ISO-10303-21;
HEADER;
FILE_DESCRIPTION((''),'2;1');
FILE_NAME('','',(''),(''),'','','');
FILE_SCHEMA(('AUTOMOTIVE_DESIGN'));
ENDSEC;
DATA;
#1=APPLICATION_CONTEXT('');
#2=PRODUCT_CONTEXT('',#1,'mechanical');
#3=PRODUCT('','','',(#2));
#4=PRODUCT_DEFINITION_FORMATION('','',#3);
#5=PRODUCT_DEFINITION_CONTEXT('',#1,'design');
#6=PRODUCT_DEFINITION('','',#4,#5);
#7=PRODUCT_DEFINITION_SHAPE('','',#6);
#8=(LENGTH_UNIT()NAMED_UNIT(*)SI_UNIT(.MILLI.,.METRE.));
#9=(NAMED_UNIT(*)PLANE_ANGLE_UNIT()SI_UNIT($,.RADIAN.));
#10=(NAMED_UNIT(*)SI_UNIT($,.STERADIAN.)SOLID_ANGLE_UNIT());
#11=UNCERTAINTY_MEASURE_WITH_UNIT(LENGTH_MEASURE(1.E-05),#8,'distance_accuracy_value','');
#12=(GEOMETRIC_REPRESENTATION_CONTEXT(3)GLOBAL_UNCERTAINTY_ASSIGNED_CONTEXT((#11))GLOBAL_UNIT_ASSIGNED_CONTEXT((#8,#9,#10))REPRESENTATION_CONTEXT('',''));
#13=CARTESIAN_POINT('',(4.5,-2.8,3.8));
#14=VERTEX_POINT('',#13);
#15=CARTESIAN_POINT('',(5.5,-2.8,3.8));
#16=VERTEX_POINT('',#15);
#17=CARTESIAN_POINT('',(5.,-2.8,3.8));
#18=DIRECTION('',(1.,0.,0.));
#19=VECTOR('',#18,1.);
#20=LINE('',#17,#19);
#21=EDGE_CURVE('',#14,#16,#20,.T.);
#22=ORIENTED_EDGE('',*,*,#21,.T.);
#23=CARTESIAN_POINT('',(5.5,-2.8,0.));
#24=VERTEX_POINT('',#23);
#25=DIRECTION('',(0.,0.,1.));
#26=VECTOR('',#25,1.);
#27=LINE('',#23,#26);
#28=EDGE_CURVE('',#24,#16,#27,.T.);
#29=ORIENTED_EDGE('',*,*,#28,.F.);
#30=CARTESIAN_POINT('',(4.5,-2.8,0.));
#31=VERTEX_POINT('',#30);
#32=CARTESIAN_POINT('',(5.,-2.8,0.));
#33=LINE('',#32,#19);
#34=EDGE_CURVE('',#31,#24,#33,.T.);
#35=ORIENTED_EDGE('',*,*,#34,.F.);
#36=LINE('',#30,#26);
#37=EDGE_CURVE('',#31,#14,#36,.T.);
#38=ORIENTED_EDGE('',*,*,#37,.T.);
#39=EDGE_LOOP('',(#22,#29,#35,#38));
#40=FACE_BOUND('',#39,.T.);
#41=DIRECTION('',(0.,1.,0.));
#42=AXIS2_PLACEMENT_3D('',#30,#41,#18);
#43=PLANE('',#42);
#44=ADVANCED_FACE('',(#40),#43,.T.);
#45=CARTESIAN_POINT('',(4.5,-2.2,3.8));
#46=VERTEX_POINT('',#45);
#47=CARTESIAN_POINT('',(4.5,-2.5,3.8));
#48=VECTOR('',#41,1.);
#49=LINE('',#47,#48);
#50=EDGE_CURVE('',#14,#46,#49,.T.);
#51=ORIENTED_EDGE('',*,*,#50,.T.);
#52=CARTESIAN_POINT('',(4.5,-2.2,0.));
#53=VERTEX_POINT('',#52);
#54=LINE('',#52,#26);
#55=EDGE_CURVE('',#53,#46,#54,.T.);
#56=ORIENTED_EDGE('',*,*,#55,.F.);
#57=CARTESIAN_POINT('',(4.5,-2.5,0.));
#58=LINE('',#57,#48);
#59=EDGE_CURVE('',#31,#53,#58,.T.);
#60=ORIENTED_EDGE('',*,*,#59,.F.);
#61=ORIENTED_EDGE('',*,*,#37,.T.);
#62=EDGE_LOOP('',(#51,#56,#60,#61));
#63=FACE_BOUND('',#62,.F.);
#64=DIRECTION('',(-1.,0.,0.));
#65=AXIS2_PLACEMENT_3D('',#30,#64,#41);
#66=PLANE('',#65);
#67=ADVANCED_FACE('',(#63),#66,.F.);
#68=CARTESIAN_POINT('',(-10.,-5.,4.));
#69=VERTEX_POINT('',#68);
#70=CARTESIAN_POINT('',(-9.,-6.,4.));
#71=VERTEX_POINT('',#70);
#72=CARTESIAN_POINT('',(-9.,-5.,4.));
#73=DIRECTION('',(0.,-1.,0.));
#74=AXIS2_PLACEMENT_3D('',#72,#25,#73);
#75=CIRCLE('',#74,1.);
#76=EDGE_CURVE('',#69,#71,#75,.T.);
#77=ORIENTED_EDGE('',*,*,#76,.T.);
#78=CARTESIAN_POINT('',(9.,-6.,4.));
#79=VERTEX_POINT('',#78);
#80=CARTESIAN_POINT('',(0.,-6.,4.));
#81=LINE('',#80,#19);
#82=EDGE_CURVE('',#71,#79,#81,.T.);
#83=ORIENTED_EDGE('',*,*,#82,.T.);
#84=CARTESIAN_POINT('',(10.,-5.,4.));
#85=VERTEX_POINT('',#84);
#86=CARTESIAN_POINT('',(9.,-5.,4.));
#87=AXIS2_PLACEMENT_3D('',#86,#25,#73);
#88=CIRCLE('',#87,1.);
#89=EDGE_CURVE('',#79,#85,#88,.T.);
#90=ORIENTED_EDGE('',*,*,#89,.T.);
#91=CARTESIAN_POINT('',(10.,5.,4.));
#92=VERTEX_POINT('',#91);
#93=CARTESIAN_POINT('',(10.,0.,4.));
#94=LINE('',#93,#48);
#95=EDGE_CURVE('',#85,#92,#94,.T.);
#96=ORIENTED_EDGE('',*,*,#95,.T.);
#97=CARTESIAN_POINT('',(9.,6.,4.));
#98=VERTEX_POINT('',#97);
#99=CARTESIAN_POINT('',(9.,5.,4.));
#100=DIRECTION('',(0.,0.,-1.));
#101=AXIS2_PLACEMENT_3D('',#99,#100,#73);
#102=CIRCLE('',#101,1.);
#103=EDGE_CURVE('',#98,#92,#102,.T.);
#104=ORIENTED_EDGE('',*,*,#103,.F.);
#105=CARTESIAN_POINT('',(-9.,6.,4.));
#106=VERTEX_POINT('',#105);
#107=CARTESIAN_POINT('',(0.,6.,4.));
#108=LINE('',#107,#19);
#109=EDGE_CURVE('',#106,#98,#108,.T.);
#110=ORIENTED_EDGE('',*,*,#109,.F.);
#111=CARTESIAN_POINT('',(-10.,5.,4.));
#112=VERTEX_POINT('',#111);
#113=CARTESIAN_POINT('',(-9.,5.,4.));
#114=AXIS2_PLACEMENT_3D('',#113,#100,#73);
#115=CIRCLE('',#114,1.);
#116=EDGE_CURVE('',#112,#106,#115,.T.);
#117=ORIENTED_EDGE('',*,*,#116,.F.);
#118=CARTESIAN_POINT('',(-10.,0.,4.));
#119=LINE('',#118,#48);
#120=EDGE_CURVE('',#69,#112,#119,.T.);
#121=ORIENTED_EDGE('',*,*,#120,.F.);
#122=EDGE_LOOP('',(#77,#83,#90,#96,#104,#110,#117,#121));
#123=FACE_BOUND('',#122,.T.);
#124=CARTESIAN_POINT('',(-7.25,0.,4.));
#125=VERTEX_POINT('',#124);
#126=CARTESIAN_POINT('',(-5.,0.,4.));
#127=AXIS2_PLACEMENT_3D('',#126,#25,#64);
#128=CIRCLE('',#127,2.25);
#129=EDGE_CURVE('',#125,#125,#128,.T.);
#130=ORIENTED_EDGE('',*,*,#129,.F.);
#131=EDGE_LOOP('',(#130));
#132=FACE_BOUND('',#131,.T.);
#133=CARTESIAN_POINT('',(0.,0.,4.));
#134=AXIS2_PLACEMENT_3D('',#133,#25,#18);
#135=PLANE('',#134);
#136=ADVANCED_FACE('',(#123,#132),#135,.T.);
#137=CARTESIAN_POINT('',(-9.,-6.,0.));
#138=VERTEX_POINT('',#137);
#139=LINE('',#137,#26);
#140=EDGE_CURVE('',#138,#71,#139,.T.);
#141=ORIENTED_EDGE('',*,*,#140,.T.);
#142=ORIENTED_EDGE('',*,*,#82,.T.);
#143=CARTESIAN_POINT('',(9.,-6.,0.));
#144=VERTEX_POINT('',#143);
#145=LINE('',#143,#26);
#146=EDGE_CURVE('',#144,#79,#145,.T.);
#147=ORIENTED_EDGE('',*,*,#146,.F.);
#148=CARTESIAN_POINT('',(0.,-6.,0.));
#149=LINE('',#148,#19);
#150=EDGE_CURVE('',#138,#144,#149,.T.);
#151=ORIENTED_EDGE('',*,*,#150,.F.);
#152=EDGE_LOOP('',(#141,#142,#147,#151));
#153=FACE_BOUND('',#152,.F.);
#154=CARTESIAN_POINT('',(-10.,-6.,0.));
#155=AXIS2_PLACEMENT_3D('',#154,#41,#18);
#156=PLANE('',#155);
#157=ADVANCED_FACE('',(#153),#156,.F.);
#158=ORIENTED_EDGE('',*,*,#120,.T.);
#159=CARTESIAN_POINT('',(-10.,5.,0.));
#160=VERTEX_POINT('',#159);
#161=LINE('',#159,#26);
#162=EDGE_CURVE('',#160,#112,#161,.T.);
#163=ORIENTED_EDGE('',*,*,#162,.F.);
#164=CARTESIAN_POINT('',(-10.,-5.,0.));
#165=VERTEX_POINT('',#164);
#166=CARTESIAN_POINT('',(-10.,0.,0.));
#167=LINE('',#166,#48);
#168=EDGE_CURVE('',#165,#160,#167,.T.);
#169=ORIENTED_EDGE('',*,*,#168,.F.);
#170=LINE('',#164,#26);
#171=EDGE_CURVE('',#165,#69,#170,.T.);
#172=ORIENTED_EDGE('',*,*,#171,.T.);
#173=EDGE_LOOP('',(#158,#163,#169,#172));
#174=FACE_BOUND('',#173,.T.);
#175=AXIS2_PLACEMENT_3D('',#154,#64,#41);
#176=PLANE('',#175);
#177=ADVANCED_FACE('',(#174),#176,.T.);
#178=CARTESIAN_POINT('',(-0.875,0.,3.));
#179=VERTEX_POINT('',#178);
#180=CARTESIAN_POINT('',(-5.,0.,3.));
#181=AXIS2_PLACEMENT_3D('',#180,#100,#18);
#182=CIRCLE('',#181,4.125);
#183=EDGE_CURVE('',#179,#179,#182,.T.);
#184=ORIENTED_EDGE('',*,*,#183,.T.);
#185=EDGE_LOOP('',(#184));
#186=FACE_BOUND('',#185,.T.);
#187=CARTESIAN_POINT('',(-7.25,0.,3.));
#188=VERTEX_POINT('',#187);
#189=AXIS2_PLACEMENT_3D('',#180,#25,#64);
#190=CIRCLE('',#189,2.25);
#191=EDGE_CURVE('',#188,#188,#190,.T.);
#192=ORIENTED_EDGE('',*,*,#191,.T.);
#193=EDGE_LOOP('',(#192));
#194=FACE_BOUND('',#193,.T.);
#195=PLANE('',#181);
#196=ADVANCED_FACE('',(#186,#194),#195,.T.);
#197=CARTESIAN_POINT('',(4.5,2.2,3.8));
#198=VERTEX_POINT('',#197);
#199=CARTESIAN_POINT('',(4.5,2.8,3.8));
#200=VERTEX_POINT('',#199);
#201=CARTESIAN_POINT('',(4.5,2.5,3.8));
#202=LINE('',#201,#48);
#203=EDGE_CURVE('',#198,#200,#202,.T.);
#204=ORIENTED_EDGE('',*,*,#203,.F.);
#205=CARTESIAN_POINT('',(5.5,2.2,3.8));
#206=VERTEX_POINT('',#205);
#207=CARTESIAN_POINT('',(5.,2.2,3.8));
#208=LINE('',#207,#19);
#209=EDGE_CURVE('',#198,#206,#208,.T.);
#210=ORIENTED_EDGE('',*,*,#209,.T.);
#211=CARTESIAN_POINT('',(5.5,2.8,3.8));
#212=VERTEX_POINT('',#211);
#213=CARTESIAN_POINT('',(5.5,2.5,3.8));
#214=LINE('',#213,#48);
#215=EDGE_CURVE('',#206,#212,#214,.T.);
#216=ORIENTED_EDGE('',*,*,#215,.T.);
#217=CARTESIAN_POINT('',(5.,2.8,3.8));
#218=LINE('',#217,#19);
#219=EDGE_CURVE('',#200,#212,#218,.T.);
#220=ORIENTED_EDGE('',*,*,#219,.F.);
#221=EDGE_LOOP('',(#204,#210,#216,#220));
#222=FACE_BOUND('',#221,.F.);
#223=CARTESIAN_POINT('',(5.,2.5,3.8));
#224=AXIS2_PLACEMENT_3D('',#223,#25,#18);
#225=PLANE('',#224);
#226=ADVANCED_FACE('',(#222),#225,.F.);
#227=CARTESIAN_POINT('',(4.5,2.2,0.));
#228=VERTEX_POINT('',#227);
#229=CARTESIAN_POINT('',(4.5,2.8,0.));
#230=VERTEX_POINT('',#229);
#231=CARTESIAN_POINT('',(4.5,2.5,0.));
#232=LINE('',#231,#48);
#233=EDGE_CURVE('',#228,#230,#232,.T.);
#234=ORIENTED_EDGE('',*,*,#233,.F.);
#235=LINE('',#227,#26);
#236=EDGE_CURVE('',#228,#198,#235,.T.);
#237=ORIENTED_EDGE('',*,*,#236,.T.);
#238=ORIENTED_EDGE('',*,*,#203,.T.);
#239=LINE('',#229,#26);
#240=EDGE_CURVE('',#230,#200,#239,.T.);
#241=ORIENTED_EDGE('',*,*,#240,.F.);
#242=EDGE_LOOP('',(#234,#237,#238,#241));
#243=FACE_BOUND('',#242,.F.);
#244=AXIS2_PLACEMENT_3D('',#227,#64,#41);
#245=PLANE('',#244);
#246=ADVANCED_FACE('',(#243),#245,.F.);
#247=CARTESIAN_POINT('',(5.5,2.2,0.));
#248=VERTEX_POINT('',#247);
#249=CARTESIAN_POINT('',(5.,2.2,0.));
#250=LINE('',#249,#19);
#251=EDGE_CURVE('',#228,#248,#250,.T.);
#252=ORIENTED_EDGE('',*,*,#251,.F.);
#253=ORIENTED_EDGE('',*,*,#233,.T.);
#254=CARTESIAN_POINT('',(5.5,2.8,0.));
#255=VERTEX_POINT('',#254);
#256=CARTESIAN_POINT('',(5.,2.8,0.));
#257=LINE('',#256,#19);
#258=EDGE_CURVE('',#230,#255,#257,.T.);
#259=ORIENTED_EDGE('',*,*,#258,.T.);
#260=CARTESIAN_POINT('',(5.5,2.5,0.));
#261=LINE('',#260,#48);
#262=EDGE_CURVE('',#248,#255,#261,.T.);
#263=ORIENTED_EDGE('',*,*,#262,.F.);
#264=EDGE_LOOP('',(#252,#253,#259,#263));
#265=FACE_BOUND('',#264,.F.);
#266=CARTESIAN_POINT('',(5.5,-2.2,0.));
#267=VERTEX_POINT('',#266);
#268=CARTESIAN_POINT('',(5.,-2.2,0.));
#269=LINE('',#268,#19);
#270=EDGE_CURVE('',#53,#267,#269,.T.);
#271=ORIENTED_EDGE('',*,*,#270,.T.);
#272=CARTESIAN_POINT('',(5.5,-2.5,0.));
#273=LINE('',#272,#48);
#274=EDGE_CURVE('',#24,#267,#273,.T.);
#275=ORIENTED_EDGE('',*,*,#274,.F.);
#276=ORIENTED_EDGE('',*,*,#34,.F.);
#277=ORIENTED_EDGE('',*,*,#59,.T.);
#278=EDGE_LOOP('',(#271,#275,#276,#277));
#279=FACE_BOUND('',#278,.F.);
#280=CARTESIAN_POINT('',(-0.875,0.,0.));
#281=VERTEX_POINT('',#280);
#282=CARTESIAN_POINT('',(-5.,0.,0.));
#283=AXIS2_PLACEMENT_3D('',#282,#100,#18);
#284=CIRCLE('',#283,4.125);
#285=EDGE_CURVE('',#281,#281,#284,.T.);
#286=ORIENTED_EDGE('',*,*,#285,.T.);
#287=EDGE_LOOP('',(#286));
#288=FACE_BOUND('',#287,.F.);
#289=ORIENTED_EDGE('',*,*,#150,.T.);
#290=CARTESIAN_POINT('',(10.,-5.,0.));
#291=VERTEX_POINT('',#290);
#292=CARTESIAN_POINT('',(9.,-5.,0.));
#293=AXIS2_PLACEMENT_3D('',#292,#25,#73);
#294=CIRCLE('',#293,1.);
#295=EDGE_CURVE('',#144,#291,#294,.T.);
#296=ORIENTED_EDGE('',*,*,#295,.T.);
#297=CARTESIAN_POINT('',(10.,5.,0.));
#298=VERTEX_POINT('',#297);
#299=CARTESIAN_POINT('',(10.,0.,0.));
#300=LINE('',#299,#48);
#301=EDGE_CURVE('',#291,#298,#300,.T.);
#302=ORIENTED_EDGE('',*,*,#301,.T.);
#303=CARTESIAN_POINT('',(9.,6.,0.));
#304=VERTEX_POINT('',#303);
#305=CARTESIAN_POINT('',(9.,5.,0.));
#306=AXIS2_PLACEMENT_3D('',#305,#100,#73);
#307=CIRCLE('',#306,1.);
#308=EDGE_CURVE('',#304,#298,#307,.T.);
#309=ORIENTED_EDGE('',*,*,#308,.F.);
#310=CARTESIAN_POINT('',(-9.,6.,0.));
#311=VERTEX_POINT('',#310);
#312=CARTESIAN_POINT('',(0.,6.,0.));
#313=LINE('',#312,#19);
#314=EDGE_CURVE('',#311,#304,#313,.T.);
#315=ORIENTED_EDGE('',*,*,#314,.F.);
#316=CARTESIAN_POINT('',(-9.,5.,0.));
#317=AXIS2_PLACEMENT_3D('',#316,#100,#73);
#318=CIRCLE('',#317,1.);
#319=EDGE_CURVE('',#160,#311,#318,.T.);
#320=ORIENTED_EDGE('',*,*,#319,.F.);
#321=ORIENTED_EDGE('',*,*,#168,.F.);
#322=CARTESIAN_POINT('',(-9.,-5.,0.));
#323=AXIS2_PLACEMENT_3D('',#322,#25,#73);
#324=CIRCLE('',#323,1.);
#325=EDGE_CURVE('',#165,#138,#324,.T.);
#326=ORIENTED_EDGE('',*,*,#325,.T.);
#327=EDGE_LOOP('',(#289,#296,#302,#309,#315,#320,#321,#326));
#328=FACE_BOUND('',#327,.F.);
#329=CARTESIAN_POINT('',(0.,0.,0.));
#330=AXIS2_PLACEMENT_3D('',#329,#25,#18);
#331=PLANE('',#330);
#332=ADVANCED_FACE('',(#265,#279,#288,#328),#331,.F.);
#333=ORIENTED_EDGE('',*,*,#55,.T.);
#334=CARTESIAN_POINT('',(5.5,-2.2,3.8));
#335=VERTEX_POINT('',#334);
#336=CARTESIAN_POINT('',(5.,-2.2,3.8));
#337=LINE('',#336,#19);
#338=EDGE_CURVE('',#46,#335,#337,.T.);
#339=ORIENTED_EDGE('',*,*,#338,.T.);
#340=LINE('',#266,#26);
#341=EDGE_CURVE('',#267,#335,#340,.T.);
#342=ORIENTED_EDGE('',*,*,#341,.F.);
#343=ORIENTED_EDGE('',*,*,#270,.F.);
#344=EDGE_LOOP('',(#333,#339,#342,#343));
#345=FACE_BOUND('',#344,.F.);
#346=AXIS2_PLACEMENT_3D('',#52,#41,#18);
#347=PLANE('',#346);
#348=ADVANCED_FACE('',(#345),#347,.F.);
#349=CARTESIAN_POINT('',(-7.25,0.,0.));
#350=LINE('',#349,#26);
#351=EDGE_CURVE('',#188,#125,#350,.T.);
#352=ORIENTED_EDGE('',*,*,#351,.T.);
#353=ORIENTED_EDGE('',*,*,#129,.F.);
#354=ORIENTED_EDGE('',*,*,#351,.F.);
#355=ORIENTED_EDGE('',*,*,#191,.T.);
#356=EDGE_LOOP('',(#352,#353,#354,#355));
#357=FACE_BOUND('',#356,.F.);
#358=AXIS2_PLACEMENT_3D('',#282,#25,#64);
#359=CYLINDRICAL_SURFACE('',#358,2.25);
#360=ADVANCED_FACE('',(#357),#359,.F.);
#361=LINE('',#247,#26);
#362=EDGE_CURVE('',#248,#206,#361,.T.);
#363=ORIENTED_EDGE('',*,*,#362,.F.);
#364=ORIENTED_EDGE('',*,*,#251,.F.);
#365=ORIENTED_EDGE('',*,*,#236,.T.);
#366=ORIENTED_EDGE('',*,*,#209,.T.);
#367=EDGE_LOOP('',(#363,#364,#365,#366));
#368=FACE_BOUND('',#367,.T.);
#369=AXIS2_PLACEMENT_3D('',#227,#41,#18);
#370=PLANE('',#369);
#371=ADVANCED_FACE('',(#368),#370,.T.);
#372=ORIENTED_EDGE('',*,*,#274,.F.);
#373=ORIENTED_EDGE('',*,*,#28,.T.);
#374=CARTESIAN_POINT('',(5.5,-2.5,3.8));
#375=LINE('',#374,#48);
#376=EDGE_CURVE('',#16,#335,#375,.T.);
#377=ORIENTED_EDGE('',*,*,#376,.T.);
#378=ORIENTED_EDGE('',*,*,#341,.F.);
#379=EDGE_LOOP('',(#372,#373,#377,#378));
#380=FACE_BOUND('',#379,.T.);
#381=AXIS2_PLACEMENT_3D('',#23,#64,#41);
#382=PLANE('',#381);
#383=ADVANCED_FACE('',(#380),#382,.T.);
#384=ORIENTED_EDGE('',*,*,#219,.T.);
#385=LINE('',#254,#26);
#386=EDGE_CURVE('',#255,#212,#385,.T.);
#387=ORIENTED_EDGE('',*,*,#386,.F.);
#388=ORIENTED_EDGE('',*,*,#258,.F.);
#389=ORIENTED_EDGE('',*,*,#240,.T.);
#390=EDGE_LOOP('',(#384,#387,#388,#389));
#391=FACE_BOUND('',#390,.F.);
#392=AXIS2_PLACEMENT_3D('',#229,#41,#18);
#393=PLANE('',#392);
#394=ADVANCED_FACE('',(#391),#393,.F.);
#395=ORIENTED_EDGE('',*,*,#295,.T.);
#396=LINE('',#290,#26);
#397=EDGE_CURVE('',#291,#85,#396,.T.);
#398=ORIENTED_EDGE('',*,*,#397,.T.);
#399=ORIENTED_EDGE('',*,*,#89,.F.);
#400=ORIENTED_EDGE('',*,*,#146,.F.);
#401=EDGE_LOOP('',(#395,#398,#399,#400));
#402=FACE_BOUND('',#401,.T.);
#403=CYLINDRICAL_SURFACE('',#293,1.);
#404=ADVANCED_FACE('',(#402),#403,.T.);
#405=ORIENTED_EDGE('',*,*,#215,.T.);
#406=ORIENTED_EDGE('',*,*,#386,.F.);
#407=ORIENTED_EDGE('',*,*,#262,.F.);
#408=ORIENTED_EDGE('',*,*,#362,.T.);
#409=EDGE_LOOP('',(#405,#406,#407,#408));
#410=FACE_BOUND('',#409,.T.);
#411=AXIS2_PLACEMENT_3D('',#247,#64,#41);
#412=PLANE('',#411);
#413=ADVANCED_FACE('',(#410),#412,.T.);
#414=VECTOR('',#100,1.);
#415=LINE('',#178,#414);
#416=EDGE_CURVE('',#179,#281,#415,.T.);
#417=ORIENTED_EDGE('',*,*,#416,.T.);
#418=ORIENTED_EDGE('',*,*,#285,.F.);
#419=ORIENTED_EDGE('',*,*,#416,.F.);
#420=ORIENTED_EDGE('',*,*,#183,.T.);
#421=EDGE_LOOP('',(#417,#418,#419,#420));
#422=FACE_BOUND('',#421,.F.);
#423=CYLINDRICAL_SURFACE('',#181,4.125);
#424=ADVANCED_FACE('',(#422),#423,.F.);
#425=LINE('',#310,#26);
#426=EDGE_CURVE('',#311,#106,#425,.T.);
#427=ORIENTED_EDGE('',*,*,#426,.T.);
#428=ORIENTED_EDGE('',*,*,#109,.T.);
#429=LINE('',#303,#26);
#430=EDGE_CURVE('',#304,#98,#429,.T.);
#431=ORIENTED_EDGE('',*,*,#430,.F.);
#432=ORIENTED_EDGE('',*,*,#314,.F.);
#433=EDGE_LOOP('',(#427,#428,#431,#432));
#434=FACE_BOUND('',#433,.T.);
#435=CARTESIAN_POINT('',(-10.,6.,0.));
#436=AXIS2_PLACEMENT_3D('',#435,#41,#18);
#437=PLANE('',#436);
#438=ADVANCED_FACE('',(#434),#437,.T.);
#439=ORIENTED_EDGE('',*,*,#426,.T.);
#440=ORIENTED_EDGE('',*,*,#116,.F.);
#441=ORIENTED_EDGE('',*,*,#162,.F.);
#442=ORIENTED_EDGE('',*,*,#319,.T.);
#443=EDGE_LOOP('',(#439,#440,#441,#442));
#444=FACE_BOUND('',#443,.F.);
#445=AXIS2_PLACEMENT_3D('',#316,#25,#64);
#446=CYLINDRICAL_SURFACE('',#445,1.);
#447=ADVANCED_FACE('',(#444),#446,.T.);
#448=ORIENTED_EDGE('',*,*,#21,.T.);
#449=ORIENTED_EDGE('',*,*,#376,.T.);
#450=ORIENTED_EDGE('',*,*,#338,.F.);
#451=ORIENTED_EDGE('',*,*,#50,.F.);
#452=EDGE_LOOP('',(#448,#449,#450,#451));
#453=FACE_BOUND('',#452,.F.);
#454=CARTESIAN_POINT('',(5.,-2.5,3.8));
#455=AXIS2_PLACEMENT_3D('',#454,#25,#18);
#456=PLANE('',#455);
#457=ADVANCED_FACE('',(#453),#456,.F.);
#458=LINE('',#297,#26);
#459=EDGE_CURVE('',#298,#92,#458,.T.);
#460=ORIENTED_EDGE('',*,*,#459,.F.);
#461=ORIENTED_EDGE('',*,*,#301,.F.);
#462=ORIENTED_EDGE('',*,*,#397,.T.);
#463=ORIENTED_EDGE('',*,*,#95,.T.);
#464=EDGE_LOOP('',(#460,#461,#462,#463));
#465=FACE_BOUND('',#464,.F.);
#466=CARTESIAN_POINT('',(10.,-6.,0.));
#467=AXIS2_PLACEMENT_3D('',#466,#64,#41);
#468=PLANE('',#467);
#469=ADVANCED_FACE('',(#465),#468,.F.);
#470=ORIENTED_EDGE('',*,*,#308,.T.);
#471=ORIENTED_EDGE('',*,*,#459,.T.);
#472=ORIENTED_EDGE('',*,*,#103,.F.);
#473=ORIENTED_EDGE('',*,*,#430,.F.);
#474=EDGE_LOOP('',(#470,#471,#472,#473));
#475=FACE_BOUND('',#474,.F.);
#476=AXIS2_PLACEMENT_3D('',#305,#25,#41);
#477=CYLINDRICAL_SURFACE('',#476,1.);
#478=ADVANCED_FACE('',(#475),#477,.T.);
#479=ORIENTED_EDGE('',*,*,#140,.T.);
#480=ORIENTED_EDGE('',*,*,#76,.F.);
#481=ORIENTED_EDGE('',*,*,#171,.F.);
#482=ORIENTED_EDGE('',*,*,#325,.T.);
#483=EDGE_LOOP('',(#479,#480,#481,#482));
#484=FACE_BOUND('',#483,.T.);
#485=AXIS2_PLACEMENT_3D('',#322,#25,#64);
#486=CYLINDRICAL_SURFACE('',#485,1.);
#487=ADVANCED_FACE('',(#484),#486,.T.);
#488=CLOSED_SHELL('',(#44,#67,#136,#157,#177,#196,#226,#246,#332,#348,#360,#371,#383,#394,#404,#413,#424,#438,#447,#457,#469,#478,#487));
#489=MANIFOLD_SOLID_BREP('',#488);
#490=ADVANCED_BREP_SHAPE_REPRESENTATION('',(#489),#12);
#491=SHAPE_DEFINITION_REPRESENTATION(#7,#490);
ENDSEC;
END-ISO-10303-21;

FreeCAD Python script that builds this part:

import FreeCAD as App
import Part
import Sketcher
Q = App.Units.Quantity


def edges_at(feature, points):
    """Names of the edges that pass closest to the given points."""
    edges = feature.Shape.Edges
    near = lambda p: min(range(len(edges)), key=lambda i: edges[i].distToShape(Part.Vertex(*p))[0])
    return sorted({f"Edge{near(p) + 1}" for p in points})


def add_polygon(sketch, points):
    """Adds a closed chain of lines whose ends are joined by coincident constraints."""
    first, n = sketch.GeometryCount, len(points)
    for a, b in zip(points, points[1:] + points[:1]):
        sketch.addGeometry(Part.LineSegment(App.Vector(*a, 0), App.Vector(*b, 0)), False)
    for i in range(n):
        sketch.addConstraint(Sketcher.Constraint("Coincident", first + i, 2, first + (i + 1) % n, 1))

doc = App.newDocument("Part")
body = doc.addObject("PartDesign::Body", "Body")

sketch1 = doc.addObject("Sketcher::SketchObject", "Sketch")
body.addObject(sketch1)
sketch1.AttachmentSupport = (doc.XY_Plane, [""])
sketch1.MapMode = "FlatFace"
add_polygon(sketch1, [(-10, 6), (-10, -6), (10, -6), (10, 6)])
sketch1.addConstraint([
    Sketcher.Constraint("Vertical", 0),
    Sketcher.Constraint("Horizontal", 1),
    Sketcher.Constraint("Vertical", 2),
    Sketcher.Constraint("Horizontal", 3),
    Sketcher.Constraint("Symmetric", 0, 2, 2, 2, -1, 1),
    Sketcher.Constraint("DistanceX", 1, 1, 1, 2, Q("20 mm")),
    Sketcher.Constraint("DistanceY", 0, 2, 0, 1, Q("12 mm")),
])
pad1 = doc.addObject("PartDesign::Pad", "Pad")
body.addObject(pad1)
pad1.Profile = sketch1
pad1.Length = 4

sketch2 = doc.addObject("Sketcher::SketchObject", "Sketch001")
body.addObject(sketch2)
sketch2.AttachmentSupport = (doc.XY_Plane, [""])
sketch2.MapMode = "FlatFace"
sketch2.addGeometry(Part.Circle(App.Vector(-5, 0, 0), App.Vector(0, 0, 1), 2.2), False)
sketch2.addConstraint([
    Sketcher.Constraint("PointOnObject", 0, 3, -1),
    Sketcher.Constraint("Diameter", 0, Q("4.5 mm")),
    Sketcher.Constraint("DistanceX", 0, 3, -1, 1, Q("5 mm")),
])
doc.recompute()
hole = doc.addObject("PartDesign::Hole", "Hole")
body.addObject(hole)
hole.Profile = sketch2
hole.ThreadType = "None"
hole.Diameter = 4.5
hole.DepthType = "ThroughAll"
hole.HoleCutType = "Counterbore"
hole.HoleCutDiameter = 8.25
hole.HoleCutDepth = 3
hole.Reversed = True
doc.recompute()

fillet = doc.addObject("PartDesign::Fillet", "Fillet")
body.addObject(fillet)
fillet.Base = (hole, edges_at(hole, [
    (-10, 6, 2),
    (10, 6, 2),
    (-10, -6, 2),
    (10, -6, 2),
]))
fillet.Radius = 1

sketch3 = doc.addObject("Sketcher::SketchObject", "Sketch002")
body.addObject(sketch3)
sketch3.AttachmentSupport = (doc.XY_Plane, [""])
sketch3.MapMode = "FlatFace"
add_polygon(sketch3, [(4.5, -2.2), (4.5, -2.8), (5.5, -2.8), (5.5, -2.2)])
add_polygon(sketch3, [(4.5, 2.8), (4.5, 2.2), (5.5, 2.2), (5.5, 2.8)])
sketch3.addConstraint([
    Sketcher.Constraint("Vertical", 0),
    Sketcher.Constraint("Horizontal", 1),
    Sketcher.Constraint("Vertical", 2),
    Sketcher.Constraint("Horizontal", 3),
    Sketcher.Constraint("Vertical", 4),
    Sketcher.Constraint("Horizontal", 5),
    Sketcher.Constraint("Vertical", 6),
    Sketcher.Constraint("Horizontal", 7),
    Sketcher.Constraint("Symmetric", 3, 2, 4, 2, -1),
    Sketcher.Constraint("Symmetric", 1, 2, 6, 2, -1),
    Sketcher.Constraint("DistanceX", 1, 1, 1, 2, Q("1 mm")),
    Sketcher.Constraint("DistanceY", 0, 2, 0, 1, Q("0.6 mm")),
    Sketcher.Constraint("DistanceY", 0, 2, 4, 2, Q("5 mm")),
    Sketcher.Constraint("DistanceX", -1, 1, 0, 2, Q("4.5 mm")),
])
pocket1 = doc.addObject("PartDesign::Pocket", "Pocket")
body.addObject(pocket1)
pocket1.Profile = sketch3
pocket1.Length = 3.8
pocket1.Reversed = True

doc.recompute()
